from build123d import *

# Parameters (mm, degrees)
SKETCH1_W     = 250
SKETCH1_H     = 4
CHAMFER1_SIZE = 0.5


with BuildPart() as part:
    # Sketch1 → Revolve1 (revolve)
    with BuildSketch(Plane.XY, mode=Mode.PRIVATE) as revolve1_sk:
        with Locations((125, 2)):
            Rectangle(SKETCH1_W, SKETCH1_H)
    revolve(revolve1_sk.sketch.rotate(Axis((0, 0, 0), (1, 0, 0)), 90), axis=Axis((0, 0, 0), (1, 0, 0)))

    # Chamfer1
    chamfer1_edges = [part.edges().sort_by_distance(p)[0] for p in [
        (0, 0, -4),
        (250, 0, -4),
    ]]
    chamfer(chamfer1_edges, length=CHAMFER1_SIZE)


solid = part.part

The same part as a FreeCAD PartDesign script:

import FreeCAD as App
import Part
import Sketcher


def edges_at(feature, points):
    """Names of the edges that pass closest to the given points."""
    edges = feature.Shape.Edges
    near = lambda p: min(range(len(edges)), key=lambda i: edges[i].distToShape(Part.Vertex(*p))[0])
    return sorted({f"Edge{near(p) + 1}" for p in points})


def add_polygon(sketch, points):
    """Adds a closed chain of lines whose ends are joined by coincident constraints."""
    first, n = sketch.GeometryCount, len(points)
    for a, b in zip(points, points[1:] + points[:1]):
        sketch.addGeometry(Part.LineSegment(App.Vector(*a, 0), App.Vector(*b, 0)), False)
    for i in range(n):
        sketch.addConstraint(Sketcher.Constraint("Coincident", first + i, 2, first + (i + 1) % n, 1))

doc = App.newDocument("Part")
body = doc.addObject("PartDesign::Body", "Body")

sketch1 = body.newObject("Sketcher::SketchObject", "Sketch")
sketch1.AttachmentSupport = (doc.getObject("XY_Plane"), [""])
sketch1.MapMode = "FlatFace"
add_polygon(sketch1, [(0, 4), (0, 0), (250, 0), (250, 4)])
sketch1.addConstraint([
    Sketcher.Constraint("Vertical", 0),
    Sketcher.Constraint("Horizontal", 1),
    Sketcher.Constraint("Vertical", 2),
    Sketcher.Constraint("Horizontal", 3),
    Sketcher.Constraint("Coincident", 0, 2, -1, 1),
    Sketcher.Constraint("DistanceX", 1, 1, 1, 2, 250.0),
    Sketcher.Constraint("DistanceY", 0, 2, 0, 1, 4.0),
])
revolution = body.newObject("PartDesign::Revolution", "Revolution")
revolution.Profile = sketch1
revolution.ReferenceAxis = (sketch1, ["H_Axis"])
revolution.Angle = 360
doc.recompute()

chamfer = body.newObject("PartDesign::Chamfer", "Chamfer")
chamfer.Base = (revolution, edges_at(revolution, [(0, 0, -4), (250, 0, -4)]))
chamfer.Size = 0.5

doc.recompute()
